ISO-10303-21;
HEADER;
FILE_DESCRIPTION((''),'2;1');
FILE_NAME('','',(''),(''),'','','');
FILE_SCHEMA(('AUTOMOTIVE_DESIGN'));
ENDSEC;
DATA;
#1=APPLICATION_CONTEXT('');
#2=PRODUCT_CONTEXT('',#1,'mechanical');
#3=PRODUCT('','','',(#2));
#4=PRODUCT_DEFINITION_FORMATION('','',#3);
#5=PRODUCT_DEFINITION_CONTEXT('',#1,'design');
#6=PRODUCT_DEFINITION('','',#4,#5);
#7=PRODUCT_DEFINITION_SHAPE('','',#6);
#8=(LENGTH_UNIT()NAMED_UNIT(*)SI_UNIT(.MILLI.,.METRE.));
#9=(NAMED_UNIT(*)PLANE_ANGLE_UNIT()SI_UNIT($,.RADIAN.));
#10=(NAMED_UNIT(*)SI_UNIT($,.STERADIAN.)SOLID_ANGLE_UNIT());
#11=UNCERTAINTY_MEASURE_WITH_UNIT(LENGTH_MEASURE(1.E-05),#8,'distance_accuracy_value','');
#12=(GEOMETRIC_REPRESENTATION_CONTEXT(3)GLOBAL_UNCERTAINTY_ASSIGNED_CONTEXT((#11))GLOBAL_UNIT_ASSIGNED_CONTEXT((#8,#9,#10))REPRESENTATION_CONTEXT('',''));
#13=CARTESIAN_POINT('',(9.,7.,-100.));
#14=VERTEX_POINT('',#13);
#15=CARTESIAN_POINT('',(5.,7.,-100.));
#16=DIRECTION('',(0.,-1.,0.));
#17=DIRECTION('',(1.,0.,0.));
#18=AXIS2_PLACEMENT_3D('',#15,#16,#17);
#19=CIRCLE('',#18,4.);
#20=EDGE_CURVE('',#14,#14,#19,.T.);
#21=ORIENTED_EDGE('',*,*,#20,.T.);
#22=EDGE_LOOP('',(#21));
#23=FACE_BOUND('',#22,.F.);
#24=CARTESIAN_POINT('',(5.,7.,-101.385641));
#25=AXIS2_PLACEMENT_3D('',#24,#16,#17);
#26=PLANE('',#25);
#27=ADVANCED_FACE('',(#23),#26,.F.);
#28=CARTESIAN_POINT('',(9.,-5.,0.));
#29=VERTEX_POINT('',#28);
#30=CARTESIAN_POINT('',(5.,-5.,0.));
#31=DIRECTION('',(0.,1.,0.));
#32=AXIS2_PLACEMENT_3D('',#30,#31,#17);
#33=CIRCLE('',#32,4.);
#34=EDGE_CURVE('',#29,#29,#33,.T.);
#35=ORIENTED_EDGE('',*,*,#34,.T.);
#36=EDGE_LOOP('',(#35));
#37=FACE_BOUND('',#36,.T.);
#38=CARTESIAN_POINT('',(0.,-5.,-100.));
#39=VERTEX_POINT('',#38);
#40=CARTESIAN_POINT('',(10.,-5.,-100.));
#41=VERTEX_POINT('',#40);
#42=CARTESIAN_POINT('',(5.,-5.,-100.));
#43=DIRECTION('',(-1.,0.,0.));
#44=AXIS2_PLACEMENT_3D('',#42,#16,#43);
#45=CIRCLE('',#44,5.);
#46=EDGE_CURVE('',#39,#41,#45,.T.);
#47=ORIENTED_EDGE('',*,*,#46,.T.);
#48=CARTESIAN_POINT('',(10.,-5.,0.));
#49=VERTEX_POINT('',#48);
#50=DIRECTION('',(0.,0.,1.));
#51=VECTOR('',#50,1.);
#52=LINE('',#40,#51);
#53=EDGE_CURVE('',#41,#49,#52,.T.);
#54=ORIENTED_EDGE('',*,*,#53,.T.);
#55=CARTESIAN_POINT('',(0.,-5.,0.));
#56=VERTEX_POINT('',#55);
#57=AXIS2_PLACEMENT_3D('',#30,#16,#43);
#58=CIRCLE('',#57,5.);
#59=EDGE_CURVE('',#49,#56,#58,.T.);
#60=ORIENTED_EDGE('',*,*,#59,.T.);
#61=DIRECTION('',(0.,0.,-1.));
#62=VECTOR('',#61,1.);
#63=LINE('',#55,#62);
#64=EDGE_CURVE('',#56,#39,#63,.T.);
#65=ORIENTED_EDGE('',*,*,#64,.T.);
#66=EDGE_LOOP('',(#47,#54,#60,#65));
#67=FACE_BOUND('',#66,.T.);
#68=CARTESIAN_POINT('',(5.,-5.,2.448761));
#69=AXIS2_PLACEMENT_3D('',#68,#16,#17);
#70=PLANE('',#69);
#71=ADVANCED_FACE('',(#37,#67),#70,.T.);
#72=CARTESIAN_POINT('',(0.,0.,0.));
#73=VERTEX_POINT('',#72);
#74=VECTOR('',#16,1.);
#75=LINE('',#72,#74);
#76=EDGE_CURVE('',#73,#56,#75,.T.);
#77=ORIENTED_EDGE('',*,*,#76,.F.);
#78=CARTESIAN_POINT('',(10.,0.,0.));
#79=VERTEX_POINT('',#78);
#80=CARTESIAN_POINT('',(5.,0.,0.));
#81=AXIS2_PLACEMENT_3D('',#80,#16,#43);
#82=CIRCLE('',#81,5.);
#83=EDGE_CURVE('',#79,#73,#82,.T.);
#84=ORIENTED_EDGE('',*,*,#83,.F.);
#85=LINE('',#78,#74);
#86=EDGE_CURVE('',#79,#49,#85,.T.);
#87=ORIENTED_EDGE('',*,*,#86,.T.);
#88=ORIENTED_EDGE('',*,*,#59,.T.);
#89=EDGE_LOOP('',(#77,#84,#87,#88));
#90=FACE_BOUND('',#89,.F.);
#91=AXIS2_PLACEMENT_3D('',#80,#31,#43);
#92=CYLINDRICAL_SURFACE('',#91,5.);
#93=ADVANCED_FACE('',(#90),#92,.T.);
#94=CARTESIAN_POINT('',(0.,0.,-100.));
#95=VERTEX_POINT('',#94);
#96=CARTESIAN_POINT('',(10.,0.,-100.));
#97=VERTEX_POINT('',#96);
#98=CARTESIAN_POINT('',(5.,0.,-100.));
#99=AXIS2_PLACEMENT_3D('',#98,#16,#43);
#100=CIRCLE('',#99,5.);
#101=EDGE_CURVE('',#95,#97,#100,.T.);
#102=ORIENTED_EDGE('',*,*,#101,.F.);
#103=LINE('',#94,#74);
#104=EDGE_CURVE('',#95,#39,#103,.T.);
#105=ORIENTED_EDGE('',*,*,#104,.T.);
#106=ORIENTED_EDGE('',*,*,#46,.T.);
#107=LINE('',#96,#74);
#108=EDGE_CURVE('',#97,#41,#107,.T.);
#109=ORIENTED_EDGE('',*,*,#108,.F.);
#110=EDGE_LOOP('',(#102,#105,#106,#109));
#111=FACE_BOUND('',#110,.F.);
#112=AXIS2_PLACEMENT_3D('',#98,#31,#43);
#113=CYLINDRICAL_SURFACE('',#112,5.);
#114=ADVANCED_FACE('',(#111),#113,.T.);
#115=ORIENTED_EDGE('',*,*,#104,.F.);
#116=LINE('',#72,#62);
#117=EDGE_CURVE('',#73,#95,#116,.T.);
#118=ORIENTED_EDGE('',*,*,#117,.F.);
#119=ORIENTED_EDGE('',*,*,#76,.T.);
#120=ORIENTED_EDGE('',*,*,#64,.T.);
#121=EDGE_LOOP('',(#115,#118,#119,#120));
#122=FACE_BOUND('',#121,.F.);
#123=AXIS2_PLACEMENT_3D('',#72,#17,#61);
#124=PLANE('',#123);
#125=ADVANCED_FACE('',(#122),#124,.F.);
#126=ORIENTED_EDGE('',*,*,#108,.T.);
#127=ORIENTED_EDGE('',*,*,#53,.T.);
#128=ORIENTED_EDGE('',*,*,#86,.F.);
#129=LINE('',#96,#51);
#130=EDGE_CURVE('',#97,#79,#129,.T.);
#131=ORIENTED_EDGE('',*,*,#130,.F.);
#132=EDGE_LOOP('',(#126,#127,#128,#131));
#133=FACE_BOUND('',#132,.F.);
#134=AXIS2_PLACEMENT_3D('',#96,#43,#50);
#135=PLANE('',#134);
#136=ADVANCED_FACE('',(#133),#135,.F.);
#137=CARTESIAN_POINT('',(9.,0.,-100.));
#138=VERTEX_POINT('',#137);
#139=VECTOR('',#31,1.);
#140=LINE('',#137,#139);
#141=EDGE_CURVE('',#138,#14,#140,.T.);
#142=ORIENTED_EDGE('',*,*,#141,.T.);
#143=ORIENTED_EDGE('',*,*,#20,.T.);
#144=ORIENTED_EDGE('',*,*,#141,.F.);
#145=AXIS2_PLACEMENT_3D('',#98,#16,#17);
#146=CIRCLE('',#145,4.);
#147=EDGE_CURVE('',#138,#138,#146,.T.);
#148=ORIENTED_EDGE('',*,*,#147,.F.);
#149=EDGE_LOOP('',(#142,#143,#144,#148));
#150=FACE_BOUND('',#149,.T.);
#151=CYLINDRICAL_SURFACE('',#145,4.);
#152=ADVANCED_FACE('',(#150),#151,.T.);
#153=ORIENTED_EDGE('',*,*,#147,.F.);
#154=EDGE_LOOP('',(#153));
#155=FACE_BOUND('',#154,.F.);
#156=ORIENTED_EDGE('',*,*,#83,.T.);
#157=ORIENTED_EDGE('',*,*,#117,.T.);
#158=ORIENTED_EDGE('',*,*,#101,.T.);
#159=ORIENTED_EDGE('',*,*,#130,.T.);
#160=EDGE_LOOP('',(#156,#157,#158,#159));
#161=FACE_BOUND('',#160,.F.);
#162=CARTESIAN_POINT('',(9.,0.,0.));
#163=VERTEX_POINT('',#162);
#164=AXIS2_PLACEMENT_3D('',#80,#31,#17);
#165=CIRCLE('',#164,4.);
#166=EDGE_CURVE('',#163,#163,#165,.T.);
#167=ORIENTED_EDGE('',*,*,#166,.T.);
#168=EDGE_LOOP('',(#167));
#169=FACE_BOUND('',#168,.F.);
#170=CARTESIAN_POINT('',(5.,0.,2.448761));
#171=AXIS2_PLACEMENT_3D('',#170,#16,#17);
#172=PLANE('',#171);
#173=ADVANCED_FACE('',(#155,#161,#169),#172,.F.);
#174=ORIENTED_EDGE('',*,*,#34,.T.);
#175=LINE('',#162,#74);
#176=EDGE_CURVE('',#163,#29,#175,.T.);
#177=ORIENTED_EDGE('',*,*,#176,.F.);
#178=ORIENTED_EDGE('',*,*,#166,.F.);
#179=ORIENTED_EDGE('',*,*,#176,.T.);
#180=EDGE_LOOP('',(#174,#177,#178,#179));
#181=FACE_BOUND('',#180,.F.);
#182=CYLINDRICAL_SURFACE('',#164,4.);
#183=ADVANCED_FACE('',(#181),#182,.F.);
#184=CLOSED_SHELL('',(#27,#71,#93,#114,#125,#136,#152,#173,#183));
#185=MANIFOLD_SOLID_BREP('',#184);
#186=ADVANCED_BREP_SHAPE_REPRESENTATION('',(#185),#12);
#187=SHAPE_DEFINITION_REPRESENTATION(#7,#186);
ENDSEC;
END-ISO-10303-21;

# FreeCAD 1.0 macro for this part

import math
import FreeCAD as App
import Part
import Sketcher
from FreeCAD import Vector
Q = App.Units.Quantity

doc = App.newDocument("Part")
body = doc.addObject("PartDesign::Body", "Body")

sketch1 = body.newObject("Sketcher::SketchObject", "Sketch")
sketch1.AttachmentSupport = (doc.getObject("XZ_Plane"), [""])
sketch1.MapMode = "FlatFace"
sketch1.addGeometry([
    Part.ArcOfCircle(Part.Circle(Vector(5, 0, 0), Vector(0, 0, 1), 5), math.radians(0), math.radians(180)),
    Part.LineSegment(Vector(0, 0, 0), Vector(0, -100, 0)),
    Part.ArcOfCircle(Part.Circle(Vector(5, -100, 0), Vector(0, 0, 1), 5), math.radians(180), math.radians(360)),
    Part.LineSegment(Vector(10, -100, 0), Vector(10, 0, 0)),
    Part.Circle(Vector(5, 0, 0), Vector(0, 0, 1), 4),
], False)
sketch1.addConstraint([
    Sketcher.Constraint("Tangent", 0, 2, 1, 1),
    Sketcher.Constraint("Tangent", 1, 2, 2, 1),
    Sketcher.Constraint("Tangent", 2, 2, 3, 1),
    Sketcher.Constraint("Tangent", 3, 2, 0, 1),
    Sketcher.Constraint("Vertical", 1),
    Sketcher.Constraint("Vertical", 3),
    Sketcher.Constraint("Coincident", 0, 2, -1, 1),
    Sketcher.Constraint("Coincident", 4, 3, 0, 3),
    Sketcher.Constraint("Diameter", 4, Q("8 mm")),
    Sketcher.Constraint("Radius", 0, Q("5 mm")),
    Sketcher.Constraint("DistanceY", 1, 2, 1, 1, Q("100 mm")),
])
pad1 = body.newObject("PartDesign::Pad", "Pad")
pad1.Profile = sketch1
pad1.Length = 5

sketch2 = body.newObject("Sketcher::SketchObject", "Sketch001")
sketch2.AttachmentSupport = (doc.getObject("XZ_Plane"), [""])
sketch2.MapMode = "FlatFace"
sketch2.addGeometry(Part.Circle(Vector(5, -100, 0), Vector(0, 0, 1), 4), False)
sketch2.addConstraint([
    Sketcher.Constraint("Diameter", 0, Q("8 mm")),
    Sketcher.Constraint("DistanceX", -1, 1, 0, 3, Q("5 mm")),
    Sketcher.Constraint("DistanceY", 0, 3, -1, 1, Q("100 mm")),
])
pad2 = body.newObject("PartDesign::Pad", "Pad001")
pad2.Profile = sketch2
pad2.Length = 7
pad2.Reversed = True

doc.recompute()
